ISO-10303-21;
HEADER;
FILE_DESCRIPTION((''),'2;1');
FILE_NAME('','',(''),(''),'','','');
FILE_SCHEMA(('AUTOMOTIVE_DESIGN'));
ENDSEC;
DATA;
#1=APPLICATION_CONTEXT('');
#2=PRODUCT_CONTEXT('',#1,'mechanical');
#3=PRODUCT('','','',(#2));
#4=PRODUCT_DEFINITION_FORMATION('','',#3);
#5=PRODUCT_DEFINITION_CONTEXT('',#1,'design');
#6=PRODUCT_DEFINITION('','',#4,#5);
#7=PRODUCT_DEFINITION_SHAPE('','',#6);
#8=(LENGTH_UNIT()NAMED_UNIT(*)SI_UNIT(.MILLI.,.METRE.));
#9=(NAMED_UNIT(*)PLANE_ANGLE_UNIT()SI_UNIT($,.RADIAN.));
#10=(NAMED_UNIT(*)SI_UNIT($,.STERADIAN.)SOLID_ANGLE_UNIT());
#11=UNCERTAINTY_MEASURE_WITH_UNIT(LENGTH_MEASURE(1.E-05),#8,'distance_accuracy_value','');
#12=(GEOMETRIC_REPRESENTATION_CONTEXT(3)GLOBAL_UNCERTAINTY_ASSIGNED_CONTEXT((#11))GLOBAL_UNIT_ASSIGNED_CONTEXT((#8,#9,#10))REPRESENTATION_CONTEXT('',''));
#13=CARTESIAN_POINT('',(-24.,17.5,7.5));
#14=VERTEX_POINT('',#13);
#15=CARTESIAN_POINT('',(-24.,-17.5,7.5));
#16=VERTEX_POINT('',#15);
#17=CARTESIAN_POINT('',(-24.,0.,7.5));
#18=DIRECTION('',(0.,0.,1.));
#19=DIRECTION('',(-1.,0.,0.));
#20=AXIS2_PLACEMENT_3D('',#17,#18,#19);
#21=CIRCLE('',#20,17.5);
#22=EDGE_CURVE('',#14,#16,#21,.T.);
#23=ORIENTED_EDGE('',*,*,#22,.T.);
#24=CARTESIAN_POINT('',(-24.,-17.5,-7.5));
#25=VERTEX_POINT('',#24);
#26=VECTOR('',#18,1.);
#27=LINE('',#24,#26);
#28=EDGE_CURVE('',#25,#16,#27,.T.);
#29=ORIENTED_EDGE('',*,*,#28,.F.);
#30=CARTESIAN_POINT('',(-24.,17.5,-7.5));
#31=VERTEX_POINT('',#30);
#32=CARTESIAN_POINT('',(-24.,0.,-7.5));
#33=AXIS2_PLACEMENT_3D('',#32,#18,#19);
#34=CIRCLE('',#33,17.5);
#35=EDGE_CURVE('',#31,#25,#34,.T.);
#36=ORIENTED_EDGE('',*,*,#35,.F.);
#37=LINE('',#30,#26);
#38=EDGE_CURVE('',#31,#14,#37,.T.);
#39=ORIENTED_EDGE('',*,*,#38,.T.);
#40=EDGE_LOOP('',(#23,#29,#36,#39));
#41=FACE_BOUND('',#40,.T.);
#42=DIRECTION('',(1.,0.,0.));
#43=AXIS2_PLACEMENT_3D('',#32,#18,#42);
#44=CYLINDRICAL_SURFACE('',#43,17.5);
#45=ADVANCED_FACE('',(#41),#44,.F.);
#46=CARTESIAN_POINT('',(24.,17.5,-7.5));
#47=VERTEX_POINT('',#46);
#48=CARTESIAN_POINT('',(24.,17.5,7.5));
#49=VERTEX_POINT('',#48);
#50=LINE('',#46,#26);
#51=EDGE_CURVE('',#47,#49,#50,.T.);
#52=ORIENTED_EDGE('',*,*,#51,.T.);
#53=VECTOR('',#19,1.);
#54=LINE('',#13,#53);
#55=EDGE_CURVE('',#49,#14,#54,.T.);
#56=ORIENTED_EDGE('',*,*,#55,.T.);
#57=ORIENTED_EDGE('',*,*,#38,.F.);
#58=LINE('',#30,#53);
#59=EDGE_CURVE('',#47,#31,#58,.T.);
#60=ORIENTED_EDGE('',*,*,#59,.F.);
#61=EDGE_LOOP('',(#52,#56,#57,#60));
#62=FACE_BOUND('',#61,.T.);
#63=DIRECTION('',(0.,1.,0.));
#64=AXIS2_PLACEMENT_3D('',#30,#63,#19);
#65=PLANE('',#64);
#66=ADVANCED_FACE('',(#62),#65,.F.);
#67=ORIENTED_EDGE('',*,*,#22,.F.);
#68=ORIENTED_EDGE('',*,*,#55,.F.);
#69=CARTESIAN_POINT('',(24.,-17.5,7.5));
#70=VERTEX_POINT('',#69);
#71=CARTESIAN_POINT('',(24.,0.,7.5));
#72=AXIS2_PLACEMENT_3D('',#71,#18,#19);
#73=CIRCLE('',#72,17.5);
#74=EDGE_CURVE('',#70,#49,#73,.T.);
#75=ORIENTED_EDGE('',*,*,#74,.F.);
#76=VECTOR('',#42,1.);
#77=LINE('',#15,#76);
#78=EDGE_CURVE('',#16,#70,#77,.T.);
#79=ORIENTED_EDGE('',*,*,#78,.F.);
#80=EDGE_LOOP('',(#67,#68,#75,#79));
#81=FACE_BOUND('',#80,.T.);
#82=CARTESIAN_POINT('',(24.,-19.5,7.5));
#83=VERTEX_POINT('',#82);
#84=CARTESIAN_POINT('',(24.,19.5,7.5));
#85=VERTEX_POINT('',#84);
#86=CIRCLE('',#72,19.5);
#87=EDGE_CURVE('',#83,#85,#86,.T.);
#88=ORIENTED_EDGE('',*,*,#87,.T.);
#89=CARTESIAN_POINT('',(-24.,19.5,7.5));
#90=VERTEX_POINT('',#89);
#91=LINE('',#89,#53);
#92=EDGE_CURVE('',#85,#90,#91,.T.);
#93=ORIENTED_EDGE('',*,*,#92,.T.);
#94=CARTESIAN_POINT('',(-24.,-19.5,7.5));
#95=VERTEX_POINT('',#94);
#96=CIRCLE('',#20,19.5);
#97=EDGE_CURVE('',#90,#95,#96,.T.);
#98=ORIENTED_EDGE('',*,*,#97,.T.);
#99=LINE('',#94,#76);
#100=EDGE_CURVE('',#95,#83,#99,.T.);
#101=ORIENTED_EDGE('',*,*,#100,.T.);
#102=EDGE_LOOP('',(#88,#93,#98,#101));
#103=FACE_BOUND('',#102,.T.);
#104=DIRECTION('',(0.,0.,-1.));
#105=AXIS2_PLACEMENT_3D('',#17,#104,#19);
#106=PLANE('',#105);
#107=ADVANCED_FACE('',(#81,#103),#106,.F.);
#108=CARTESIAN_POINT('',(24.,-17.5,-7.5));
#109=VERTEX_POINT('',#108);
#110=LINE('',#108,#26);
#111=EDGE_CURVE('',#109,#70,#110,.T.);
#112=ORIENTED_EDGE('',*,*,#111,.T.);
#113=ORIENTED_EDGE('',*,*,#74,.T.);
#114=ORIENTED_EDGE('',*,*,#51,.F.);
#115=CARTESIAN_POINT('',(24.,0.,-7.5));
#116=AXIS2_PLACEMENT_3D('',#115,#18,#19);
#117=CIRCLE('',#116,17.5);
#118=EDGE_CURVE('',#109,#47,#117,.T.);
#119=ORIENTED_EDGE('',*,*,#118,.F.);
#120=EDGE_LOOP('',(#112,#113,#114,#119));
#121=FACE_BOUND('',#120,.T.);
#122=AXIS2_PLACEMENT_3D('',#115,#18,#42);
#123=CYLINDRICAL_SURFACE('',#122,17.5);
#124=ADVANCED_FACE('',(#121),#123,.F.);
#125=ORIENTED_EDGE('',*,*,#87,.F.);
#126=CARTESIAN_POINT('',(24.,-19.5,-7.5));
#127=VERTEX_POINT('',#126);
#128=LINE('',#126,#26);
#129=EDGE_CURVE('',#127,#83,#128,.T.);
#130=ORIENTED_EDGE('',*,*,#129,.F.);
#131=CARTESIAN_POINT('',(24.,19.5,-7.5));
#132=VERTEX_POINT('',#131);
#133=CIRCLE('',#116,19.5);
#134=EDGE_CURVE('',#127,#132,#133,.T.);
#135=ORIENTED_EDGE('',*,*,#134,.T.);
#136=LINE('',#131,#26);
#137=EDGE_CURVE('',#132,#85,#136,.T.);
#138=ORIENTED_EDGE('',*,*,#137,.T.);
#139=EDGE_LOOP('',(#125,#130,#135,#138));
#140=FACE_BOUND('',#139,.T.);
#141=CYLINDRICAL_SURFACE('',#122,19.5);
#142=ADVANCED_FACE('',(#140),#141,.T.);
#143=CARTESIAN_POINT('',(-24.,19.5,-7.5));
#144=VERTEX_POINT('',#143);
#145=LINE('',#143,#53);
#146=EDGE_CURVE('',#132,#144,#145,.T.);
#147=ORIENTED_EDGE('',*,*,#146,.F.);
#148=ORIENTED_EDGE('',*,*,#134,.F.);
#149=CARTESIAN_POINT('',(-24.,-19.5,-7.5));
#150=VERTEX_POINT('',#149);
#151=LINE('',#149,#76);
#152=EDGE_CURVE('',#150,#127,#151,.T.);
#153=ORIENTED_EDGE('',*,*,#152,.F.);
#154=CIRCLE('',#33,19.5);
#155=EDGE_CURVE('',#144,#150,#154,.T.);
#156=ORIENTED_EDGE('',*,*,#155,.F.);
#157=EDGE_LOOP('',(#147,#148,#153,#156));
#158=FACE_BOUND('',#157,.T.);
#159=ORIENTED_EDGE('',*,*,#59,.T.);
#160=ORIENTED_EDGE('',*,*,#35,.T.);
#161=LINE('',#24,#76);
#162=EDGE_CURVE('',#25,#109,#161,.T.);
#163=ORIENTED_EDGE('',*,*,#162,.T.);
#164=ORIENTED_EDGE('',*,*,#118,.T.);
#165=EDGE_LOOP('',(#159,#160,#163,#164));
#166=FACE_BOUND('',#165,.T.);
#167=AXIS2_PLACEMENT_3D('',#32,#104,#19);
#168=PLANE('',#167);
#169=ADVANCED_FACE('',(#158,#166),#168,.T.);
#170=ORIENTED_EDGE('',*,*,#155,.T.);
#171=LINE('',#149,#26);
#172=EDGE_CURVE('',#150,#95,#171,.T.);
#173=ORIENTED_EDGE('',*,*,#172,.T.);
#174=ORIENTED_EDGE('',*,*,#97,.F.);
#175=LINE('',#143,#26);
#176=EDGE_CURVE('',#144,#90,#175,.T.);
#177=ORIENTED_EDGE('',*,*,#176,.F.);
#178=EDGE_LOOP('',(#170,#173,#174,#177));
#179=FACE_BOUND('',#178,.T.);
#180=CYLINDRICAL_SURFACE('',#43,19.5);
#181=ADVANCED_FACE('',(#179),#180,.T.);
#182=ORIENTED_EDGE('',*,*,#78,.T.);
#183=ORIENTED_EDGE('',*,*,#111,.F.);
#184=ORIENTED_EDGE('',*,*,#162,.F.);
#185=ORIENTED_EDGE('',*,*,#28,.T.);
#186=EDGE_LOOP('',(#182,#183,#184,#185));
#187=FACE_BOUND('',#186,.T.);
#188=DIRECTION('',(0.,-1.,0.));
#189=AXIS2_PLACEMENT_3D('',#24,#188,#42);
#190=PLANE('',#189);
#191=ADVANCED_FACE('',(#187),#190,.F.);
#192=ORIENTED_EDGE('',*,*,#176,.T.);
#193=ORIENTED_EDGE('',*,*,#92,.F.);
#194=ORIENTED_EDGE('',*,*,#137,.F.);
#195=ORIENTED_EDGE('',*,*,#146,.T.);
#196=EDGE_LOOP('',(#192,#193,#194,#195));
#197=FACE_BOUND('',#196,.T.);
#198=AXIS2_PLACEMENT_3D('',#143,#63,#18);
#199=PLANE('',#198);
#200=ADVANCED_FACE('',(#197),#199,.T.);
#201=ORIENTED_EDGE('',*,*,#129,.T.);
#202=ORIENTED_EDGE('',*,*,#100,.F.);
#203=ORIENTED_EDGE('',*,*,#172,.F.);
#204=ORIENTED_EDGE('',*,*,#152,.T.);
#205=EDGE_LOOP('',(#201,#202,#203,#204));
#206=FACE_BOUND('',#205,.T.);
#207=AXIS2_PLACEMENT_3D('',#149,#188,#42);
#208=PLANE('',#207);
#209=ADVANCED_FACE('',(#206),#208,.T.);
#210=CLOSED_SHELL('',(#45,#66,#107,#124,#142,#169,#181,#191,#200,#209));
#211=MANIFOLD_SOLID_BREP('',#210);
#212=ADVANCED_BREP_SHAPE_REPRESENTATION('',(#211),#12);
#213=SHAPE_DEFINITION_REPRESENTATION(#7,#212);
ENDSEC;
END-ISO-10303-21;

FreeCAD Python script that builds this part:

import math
import FreeCAD as App
import Part
import Sketcher

V = App.Vector
Q = App.Units.Quantity

doc = App.newDocument("Part")
body = doc.addObject("PartDesign::Body", "Body")

# Sketch on XY plane
sketch1 = doc.addObject("Sketcher::SketchObject", "Sketch")
body.addObject(sketch1)
sketch1.AttachmentSupport = (doc.XY_Plane, [""])
sketch1.MapMode = "FlatFace"
sketch1.addGeometry(Part.LineSegment(V(24, 20, 0), V(-24, 20, 0)), False)
sketch1.addGeometry(Part.ArcOfCircle(Part.Circle(V(-24, 0, 0), V(0, 0, 1), 20), math.radians(90), math.radians(270)), False)
sketch1.addGeometry(Part.LineSegment(V(-24, -20, 0), V(24, -20, 0)), False)
sketch1.addGeometry(Part.ArcOfCircle(Part.Circle(V(24, 0, 0), V(0, 0, 1), 20), math.radians(-90), math.radians(90)), False)
sketch1.addGeometry(Part.LineSegment(V(-24, 18, 0), V(24, 18, 0)), False)
sketch1.addGeometry(Part.ArcOfCircle(Part.Circle(V(24, 0, 0), V(0, 0, 1), 18), math.radians(-90), math.radians(90)), False)
sketch1.addGeometry(Part.LineSegment(V(24, -18, 0), V(-24, -18, 0)), False)
sketch1.addGeometry(Part.ArcOfCircle(Part.Circle(V(-24, 0, 0), V(0, 0, 1), 18), math.radians(90), math.radians(270)), False)
sketch1.addConstraint(Sketcher.Constraint("Tangent", 0, 2, 1, 1))
sketch1.addConstraint(Sketcher.Constraint("Tangent", 1, 2, 2, 1))
sketch1.addConstraint(Sketcher.Constraint("Tangent", 2, 2, 3, 1))
sketch1.addConstraint(Sketcher.Constraint("Tangent", 3, 2, 0, 1))
sketch1.addConstraint(Sketcher.Constraint("Tangent", 4, 2, 5, 2))
sketch1.addConstraint(Sketcher.Constraint("Tangent", 5, 1, 6, 1))
sketch1.addConstraint(Sketcher.Constraint("Tangent", 6, 2, 7, 2))
sketch1.addConstraint(Sketcher.Constraint("Tangent", 7, 1, 4, 1))
sketch1.addConstraint(Sketcher.Constraint("Horizontal", 0))
sketch1.addConstraint(Sketcher.Constraint("Horizontal", 2))
sketch1.addConstraint(Sketcher.Constraint("Horizontal", 4))
sketch1.addConstraint(Sketcher.Constraint("Horizontal", 6))
sketch1.addConstraint(Sketcher.Constraint("Coincident", 5, 3, 3, 3))
sketch1.addConstraint(Sketcher.Constraint("Symmetric", 1, 3, 3, 3, -1, 1))
sketch1.addConstraint(Sketcher.Constraint("Vertical", 7, 3, 0, 2))
sketch1.addConstraint(Sketcher.Constraint("Radius", 1, Q("19.5 mm")))
sketch1.addConstraint(Sketcher.Constraint("Radius", 5, Q("17.5 mm")))
sketch1.addConstraint(Sketcher.Constraint("DistanceX", 0, 2, 0, 1, Q("48 mm")))
pad1 = doc.addObject("PartDesign::Pad", "Pad")
body.addObject(pad1)
pad1.Profile = sketch1
pad1.Type = "TwoLengths"
pad1.Length = 7.5
pad1.Length2 = 7.5

doc.recompute()
